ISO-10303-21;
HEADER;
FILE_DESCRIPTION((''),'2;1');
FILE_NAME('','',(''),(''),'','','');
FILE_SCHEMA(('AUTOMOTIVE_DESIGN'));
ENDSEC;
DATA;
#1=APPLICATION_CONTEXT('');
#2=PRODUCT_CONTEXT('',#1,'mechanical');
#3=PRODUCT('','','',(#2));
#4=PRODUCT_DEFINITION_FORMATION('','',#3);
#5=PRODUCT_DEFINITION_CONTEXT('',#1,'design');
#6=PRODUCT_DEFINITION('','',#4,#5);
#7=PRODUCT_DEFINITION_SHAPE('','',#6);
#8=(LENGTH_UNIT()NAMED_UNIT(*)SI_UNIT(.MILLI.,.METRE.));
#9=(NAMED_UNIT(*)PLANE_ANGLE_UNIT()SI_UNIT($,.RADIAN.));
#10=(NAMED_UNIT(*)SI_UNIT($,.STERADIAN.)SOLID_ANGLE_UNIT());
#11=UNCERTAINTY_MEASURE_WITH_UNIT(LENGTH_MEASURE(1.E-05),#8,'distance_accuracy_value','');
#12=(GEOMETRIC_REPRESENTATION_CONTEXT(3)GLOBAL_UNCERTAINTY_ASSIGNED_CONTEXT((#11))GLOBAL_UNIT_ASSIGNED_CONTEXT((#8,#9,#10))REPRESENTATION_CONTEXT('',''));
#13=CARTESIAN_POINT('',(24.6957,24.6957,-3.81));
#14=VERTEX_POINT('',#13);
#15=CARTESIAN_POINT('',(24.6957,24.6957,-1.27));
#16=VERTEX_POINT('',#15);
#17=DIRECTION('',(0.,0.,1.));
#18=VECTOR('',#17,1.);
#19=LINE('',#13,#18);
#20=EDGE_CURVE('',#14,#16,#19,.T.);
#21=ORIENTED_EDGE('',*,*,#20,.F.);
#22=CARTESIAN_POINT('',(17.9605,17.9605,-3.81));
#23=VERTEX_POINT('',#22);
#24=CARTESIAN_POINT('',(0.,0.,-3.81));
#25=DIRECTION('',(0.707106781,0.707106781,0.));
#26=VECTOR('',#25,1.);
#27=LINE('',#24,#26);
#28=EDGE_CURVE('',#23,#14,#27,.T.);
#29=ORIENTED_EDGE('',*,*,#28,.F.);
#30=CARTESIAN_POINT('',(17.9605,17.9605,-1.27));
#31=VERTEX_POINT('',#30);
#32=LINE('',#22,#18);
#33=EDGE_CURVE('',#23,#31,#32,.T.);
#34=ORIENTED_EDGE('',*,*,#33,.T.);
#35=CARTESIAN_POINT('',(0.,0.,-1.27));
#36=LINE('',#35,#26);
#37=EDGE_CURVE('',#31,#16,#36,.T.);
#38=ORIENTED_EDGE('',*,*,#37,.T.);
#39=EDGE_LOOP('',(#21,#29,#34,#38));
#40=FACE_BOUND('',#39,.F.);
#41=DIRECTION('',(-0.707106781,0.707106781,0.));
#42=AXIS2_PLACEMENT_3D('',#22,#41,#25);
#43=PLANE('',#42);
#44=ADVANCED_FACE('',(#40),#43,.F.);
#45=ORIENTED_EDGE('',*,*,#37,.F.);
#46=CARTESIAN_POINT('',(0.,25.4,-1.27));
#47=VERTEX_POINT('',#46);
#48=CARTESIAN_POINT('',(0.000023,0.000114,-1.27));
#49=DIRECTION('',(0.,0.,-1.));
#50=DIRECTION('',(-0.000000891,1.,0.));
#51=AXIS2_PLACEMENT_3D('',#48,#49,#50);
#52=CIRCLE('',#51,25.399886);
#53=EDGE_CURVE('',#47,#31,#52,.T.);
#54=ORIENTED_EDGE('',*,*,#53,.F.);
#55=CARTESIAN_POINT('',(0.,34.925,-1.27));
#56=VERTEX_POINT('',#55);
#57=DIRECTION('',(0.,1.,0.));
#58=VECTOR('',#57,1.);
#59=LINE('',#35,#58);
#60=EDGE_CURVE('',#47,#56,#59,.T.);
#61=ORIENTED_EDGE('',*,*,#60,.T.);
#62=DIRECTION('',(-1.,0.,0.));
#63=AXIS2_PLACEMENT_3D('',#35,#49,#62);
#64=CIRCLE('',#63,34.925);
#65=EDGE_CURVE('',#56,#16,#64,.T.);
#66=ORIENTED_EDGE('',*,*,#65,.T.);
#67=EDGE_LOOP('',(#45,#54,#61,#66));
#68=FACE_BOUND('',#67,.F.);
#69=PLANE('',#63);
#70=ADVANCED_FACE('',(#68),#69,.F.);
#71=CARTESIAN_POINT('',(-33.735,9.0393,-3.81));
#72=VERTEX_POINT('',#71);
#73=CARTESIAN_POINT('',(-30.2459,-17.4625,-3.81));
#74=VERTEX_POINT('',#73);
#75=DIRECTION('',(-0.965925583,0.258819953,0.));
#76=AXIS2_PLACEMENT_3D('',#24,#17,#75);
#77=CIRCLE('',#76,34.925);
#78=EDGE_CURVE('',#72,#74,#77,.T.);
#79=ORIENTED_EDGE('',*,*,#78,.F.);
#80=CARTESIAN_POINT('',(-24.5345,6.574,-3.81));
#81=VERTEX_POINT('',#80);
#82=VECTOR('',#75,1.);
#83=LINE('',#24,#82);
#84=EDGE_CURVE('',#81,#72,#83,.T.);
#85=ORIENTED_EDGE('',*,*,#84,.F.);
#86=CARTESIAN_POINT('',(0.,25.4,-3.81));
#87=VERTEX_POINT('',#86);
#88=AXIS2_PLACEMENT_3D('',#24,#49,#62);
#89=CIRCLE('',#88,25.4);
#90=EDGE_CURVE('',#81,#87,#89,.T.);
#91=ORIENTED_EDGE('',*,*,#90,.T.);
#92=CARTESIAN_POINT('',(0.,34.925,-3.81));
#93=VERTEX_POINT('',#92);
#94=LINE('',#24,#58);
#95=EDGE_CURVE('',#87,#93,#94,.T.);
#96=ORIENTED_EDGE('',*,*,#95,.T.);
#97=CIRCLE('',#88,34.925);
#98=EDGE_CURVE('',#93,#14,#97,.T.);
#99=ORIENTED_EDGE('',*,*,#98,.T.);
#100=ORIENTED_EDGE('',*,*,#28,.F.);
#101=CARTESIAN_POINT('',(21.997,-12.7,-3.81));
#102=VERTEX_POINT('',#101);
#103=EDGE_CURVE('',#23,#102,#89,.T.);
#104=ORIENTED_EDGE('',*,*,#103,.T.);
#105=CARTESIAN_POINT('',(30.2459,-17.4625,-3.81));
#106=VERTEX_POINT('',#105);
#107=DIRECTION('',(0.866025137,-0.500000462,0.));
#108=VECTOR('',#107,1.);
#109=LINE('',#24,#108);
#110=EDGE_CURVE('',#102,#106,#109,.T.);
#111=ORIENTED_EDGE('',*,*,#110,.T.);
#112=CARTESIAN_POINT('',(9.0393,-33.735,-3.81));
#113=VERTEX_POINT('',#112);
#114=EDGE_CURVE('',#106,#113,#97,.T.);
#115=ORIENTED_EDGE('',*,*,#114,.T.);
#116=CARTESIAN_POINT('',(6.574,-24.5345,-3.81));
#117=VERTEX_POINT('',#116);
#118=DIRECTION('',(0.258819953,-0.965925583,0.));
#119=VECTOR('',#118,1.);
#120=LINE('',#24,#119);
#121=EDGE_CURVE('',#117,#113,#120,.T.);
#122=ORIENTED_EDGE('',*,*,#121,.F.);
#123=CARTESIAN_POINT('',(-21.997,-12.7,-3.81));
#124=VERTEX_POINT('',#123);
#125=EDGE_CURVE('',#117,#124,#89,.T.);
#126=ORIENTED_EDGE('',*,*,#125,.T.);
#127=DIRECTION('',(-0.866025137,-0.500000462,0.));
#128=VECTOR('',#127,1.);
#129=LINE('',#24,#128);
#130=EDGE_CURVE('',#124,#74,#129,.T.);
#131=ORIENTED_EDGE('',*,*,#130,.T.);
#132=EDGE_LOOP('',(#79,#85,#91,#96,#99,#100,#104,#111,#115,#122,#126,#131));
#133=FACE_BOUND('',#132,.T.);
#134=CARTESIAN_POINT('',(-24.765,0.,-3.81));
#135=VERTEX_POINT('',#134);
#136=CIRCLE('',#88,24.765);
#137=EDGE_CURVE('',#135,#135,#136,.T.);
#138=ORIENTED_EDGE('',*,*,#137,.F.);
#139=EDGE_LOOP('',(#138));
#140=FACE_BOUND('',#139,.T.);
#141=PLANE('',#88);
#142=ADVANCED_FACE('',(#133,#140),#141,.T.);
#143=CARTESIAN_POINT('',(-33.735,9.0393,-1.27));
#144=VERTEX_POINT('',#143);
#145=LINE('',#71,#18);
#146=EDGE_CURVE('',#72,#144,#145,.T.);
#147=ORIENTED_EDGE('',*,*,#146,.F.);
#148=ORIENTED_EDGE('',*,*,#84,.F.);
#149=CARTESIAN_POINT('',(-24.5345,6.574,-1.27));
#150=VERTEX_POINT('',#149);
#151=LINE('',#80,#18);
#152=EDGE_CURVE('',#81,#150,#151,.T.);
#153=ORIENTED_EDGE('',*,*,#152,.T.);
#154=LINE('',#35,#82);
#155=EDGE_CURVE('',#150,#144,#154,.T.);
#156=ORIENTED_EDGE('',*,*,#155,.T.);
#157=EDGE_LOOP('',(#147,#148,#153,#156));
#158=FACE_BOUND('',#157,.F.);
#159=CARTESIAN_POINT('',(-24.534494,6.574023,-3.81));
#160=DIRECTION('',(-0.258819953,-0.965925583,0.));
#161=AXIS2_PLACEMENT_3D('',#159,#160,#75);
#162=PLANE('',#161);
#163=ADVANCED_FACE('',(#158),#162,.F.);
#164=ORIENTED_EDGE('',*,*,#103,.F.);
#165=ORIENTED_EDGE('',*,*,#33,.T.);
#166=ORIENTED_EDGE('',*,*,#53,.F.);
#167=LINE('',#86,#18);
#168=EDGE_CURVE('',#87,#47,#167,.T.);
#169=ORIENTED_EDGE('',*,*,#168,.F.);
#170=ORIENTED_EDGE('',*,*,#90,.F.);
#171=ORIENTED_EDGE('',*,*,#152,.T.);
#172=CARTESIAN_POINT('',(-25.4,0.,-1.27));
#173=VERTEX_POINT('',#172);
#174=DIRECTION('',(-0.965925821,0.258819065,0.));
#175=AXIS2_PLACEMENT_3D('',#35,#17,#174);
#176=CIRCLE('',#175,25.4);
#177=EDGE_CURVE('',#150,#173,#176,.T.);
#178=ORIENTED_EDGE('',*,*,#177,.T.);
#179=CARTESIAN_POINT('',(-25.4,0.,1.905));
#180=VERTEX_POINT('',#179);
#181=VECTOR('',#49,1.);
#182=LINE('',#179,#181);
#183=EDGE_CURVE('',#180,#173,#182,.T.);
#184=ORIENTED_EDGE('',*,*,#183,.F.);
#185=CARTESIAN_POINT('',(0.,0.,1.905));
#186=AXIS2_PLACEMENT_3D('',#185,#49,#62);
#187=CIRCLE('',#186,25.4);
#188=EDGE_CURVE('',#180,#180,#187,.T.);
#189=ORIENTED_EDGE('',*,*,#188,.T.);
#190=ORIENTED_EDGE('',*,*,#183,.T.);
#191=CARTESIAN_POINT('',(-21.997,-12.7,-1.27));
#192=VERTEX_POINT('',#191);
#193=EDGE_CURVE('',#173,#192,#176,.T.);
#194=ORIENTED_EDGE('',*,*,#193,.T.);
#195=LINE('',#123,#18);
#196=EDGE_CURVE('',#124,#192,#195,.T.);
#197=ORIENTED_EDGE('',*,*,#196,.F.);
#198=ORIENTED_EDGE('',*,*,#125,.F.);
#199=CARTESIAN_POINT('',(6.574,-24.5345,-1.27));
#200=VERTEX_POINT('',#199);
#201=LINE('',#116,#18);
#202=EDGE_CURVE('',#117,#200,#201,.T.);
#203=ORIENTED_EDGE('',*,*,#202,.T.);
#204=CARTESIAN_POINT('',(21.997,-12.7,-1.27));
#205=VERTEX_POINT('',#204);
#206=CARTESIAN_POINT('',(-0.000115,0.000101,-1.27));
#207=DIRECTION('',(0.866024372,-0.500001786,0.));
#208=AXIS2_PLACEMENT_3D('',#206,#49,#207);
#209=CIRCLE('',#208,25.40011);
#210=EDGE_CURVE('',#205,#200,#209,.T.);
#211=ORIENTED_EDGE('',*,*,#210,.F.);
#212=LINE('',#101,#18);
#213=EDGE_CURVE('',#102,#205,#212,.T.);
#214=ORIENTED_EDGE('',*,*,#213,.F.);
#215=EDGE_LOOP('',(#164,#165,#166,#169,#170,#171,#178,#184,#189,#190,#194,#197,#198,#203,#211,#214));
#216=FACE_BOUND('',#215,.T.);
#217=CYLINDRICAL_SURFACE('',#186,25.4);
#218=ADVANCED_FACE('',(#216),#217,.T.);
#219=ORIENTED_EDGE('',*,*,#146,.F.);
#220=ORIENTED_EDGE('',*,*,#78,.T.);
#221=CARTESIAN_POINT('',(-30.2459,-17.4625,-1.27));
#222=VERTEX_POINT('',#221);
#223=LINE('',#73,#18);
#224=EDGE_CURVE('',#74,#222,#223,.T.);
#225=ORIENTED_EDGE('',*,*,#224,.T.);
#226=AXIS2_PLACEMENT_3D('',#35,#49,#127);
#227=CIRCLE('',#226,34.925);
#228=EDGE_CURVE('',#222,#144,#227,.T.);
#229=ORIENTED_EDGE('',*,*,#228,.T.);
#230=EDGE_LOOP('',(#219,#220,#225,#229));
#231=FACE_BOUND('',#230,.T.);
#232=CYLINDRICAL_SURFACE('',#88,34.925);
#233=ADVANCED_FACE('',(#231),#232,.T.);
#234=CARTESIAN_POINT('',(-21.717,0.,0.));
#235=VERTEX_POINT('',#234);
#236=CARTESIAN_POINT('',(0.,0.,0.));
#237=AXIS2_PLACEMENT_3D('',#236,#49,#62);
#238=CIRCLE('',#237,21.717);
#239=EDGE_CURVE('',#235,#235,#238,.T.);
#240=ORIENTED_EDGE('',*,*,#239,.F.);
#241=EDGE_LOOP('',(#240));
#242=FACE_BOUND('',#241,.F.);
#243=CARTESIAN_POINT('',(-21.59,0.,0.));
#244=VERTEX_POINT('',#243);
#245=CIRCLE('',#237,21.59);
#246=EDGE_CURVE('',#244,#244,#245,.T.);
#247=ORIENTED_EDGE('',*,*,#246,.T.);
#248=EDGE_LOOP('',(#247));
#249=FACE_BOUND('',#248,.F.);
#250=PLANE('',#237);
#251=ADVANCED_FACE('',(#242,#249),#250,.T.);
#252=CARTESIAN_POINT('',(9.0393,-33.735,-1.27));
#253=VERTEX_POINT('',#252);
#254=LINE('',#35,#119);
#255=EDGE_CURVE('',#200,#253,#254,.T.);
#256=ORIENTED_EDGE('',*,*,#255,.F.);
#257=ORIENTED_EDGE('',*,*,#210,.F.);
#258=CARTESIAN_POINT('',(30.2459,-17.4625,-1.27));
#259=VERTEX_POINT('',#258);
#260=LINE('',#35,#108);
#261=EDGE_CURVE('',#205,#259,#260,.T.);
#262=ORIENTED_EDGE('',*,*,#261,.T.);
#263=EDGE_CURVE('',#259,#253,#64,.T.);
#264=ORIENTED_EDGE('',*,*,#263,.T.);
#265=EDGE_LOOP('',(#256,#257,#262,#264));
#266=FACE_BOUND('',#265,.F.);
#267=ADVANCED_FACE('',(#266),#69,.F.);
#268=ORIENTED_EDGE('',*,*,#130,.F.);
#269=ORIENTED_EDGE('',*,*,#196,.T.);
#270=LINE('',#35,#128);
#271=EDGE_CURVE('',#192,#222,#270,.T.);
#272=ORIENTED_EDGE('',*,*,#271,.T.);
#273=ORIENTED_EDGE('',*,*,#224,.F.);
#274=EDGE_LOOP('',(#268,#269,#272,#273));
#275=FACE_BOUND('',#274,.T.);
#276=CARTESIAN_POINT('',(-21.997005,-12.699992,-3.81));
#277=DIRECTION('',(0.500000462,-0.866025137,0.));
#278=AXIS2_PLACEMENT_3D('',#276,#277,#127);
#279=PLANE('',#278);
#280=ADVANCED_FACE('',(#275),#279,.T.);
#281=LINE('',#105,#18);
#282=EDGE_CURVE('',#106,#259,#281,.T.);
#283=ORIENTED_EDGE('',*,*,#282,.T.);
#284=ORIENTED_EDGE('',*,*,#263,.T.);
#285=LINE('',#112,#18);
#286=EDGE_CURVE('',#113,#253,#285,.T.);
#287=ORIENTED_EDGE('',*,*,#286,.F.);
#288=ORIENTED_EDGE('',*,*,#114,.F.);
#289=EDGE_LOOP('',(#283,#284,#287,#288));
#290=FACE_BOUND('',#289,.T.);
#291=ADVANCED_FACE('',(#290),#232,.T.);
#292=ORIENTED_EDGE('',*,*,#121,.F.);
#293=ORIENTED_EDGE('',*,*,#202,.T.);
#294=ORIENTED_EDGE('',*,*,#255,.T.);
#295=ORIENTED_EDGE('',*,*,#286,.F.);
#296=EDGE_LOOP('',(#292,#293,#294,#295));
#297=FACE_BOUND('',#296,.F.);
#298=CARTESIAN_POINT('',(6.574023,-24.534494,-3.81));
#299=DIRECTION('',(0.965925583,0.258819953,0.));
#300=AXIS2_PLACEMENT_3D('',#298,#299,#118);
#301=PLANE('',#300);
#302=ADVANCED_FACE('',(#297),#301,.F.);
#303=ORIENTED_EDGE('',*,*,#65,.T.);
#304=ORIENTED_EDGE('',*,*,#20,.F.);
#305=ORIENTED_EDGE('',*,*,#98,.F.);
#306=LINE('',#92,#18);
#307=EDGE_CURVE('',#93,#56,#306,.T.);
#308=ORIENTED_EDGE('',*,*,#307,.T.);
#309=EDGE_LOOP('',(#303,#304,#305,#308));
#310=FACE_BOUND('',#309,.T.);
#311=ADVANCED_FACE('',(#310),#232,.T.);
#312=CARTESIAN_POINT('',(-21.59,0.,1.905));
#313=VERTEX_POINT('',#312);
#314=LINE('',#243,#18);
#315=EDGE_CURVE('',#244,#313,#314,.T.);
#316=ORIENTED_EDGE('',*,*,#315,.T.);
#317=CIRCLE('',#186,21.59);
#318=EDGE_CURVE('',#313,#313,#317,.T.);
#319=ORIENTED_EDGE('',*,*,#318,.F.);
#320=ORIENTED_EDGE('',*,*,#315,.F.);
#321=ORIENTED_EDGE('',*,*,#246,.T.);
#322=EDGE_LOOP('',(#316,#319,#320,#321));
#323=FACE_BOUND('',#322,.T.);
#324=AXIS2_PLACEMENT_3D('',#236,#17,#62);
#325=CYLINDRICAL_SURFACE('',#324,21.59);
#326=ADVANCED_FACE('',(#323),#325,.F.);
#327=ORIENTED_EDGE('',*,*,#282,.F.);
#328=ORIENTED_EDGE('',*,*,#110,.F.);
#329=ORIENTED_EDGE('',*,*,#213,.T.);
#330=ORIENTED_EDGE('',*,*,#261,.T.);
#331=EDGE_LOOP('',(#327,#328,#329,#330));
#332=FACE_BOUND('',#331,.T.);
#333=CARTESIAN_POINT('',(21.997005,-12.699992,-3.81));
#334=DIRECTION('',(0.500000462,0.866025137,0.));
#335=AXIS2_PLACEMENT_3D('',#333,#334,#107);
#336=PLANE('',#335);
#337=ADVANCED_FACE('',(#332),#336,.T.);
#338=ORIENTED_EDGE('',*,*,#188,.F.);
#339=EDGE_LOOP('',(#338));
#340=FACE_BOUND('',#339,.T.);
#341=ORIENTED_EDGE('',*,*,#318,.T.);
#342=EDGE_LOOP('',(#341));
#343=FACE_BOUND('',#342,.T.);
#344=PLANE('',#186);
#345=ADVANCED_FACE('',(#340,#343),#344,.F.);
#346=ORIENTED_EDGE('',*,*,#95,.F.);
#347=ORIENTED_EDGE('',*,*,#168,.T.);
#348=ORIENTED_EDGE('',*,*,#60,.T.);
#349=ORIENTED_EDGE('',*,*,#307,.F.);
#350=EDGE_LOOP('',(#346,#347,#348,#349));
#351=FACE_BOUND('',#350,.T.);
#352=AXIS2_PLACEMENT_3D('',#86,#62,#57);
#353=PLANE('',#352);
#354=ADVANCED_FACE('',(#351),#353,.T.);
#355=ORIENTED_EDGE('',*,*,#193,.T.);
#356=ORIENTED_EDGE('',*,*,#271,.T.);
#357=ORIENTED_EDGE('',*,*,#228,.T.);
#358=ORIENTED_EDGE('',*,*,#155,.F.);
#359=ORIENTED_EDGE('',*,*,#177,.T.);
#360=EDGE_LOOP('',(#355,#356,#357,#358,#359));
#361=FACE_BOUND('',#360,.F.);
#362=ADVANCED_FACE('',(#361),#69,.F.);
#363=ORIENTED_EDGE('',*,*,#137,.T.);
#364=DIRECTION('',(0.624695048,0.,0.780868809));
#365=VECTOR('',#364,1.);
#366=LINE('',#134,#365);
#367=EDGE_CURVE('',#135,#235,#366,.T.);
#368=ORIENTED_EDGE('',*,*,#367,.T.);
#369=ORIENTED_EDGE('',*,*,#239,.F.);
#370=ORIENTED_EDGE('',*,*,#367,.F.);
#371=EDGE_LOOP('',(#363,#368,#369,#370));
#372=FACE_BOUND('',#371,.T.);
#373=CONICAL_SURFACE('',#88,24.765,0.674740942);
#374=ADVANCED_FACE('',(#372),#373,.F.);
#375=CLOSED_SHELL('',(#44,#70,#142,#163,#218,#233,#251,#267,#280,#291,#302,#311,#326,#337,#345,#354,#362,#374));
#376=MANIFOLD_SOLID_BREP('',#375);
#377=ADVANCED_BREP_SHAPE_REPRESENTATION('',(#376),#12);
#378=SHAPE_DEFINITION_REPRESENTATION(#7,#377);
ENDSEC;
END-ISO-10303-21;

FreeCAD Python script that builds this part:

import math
import FreeCAD as App
import Part
import Sketcher

V = App.Vector
Q = App.Units.Quantity


def add_polygon(sketch, points):
    """Adds a closed chain of lines whose ends are joined by coincident constraints."""
    first, n = sketch.GeometryCount, len(points)
    for a, b in zip(points, points[1:] + points[:1]):
        sketch.addGeometry(Part.LineSegment(App.Vector(*a, 0), App.Vector(*b, 0)), False)
    for i in range(n):
        sketch.addConstraint(Sketcher.Constraint("Coincident", first + i, 2, first + (i + 1) % n, 1))

doc = App.newDocument("Part")
body = doc.addObject("PartDesign::Body", "Body")

# Sketch on XZ plane
sketch1 = body.newObject("Sketcher::SketchObject", "Sketch")
sketch1.AttachmentSupport = (doc.getObject("XZ_Plane"), [""])
sketch1.MapMode = "FlatFace"
add_polygon(sketch1, [(-21.59, 1.905), (-21.59, 0), (-21.717, 0), (-24.765, -3.81), (-25.4, -3.81), (-25.4, 1.905)])  # lines 0-5
sketch1.addConstraint(Sketcher.Constraint("Vertical", 0))
sketch1.addConstraint(Sketcher.Constraint("Horizontal", 1))
sketch1.addConstraint(Sketcher.Constraint("Horizontal", 3))
sketch1.addConstraint(Sketcher.Constraint("Vertical", 4))
sketch1.addConstraint(Sketcher.Constraint("Horizontal", 5))
sketch1.addConstraint(Sketcher.Constraint("PointOnObject", 0, 2, -1))
sketch1.addConstraint(Sketcher.Constraint("DistanceX", 5, 1, 5, 2, Q("0.15 in")))
sketch1.addConstraint(Sketcher.Constraint("DistanceX", 3, 2, 3, 1, Q("0.025 in")))
sketch1.addConstraint(Sketcher.Constraint("DistanceY", 0, 2, 0, 1, Q("0.075 in")))
sketch1.addConstraint(Sketcher.Constraint("DistanceY", 2, 2, -1, 1, Q("0.15 in")))
sketch1.addConstraint(Sketcher.Constraint("DistanceX", 2, 2, 1, 2, Q("0.12 in")))
sketch1.addConstraint(Sketcher.Constraint("DistanceX", 1, 2, -1, 1, Q("0.855 in")))
revolution = body.newObject("PartDesign::Revolution", "Revolution")
revolution.Profile = sketch1
revolution.ReferenceAxis = (sketch1, ["V_Axis"])
revolution.Angle = 360

# Sketch on XY plane
sketch2 = body.newObject("Sketcher::SketchObject", "Sketch001")
sketch2.AttachmentSupport = (doc.getObject("XY_Plane"), [""])
sketch2.MapMode = "FlatFace"
sketch2.AttachmentOffset = App.Placement(V(0, 0, -0.15 * 25.4), App.Rotation())
sketch2.addGeometry(Part.ArcOfCircle(Part.Circle(V(0, 0, 0), V(0, 0, 1), 25.4), math.radians(164.999999), math.radians(210.000051)), False)
sketch2.addGeometry(Part.LineSegment(V(-21.997005, -12.699992, 0), V(-30.2459, -17.4625, 0)), False)
sketch2.addGeometry(Part.ArcOfCircle(Part.Circle(V(0, 0, 0), V(0, 0, 1), 34.925), math.radians(164.999946), math.radians(210.000031)), False)
sketch2.addGeometry(Part.LineSegment(V(-33.735, 9.0393, 0), V(-24.534494, 6.574023, 0)), False)
sketch2.addGeometry(Part.ArcOfCircle(Part.Circle(V(0, 0, 0), V(0, 0, 1), 25.399961), math.radians(45), math.radians(90)), False)
sketch2.addGeometry(Part.LineSegment(V(0, 25.4, 0), V(0, 34.925, 0)), False)
sketch2.addGeometry(Part.ArcOfCircle(Part.Circle(V(0, 0, 0), V(0, 0, 1), 34.925), math.radians(45), math.radians(90)), False)
sketch2.addGeometry(Part.LineSegment(V(24.6957, 24.6957, 0), V(17.9605, 17.9605, 0)), False)
sketch2.addGeometry(Part.LineSegment(V(9.0393, -33.735, 0), V(6.574023, -24.534494, 0)), False)
sketch2.addGeometry(Part.ArcOfCircle(Part.Circle(V(0, 0, 0), V(0, 0, 1), 25.4), math.radians(-74.999999), math.radians(-30.000051)), False)
sketch2.addGeometry(Part.LineSegment(V(21.997005, -12.699992, 0), V(30.2459, -17.4625, 0)), False)
sketch2.addGeometry(Part.ArcOfCircle(Part.Circle(V(0, 0, 0), V(0, 0, 1), 34.925), math.radians(-74.999946), math.radians(-30.000031)), False)
sketch2.addConstraint(Sketcher.Constraint("Coincident", 0, 2, 1, 1))
sketch2.addConstraint(Sketcher.Constraint("Coincident", 1, 2, 2, 2))
sketch2.addConstraint(Sketcher.Constraint("Coincident", 2, 1, 3, 1))
sketch2.addConstraint(Sketcher.Constraint("Coincident", 3, 2, 0, 1))
sketch2.addConstraint(Sketcher.Constraint("Coincident", 4, 2, 5, 1))
sketch2.addConstraint(Sketcher.Constraint("Coincident", 5, 2, 6, 2))
sketch2.addConstraint(Sketcher.Constraint("Coincident", 6, 1, 7, 1))
sketch2.addConstraint(Sketcher.Constraint("Coincident", 7, 2, 4, 1))
sketch2.addConstraint(Sketcher.Constraint("Coincident", 8, 2, 9, 1))
sketch2.addConstraint(Sketcher.Constraint("Coincident", 9, 2, 10, 1))
sketch2.addConstraint(Sketcher.Constraint("Coincident", 10, 2, 11, 2))
sketch2.addConstraint(Sketcher.Constraint("Coincident", 11, 1, 8, 1))
sketch2.addConstraint(Sketcher.Constraint("Vertical", 5))
sketch2.addConstraint(Sketcher.Constraint("Coincident", 0, 3, -1, 1))
sketch2.addConstraint(Sketcher.Constraint("Coincident", 2, 3, -1, 1))
sketch2.addConstraint(Sketcher.Constraint("Coincident", 4, 3, -1, 1))
sketch2.addConstraint(Sketcher.Constraint("Coincident", 6, 3, -1, 1))
sketch2.addConstraint(Sketcher.Constraint("Coincident", 9, 3, -1, 1))
sketch2.addConstraint(Sketcher.Constraint("Coincident", 11, 3, -1, 1))
sketch2.addConstraint(Sketcher.Constraint("Equal", 0, 4))
sketch2.addConstraint(Sketcher.Constraint("Equal", 2, 6))
sketch2.addConstraint(Sketcher.Constraint("Equal", 4, 9))
sketch2.addConstraint(Sketcher.Constraint("Equal", 6, 11))
sketch2.addConstraint(Sketcher.Constraint("PointOnObject", 4, 2, -2))
sketch2.addConstraint(Sketcher.Constraint("Horizontal", 0, 2, 9, 2))
sketch2.addConstraint(Sketcher.Constraint("Horizontal", 1, 2, 10, 2))
sketch2.addConstraint(Sketcher.Constraint("Angle", 1, Q("-150 deg")))
sketch2.addConstraint(Sketcher.Constraint("Angle", 3, Q("-15 deg")))
sketch2.addConstraint(Sketcher.Constraint("Angle", 7, Q("-135 deg")))
sketch2.addConstraint(Sketcher.Constraint("Angle", 8, Q("105 deg")))
sketch2.addConstraint(Sketcher.Constraint("Radius", 0, Q("1 in")))
sketch2.addConstraint(Sketcher.Constraint("Radius", 2, Q("1.375 in")))
sketch2.addConstraint(Sketcher.Constraint("DistanceY", 0, 2, -1, 1, Q("0.5 in")))
sketch2.addConstraint(Sketcher.Constraint("DistanceX", -1, 1, 7, 2, Q("0.7071 in")))
sketch2.addConstraint(Sketcher.Constraint("DistanceX", 3, 2, 0, 2, Q("0.0999 in")))
sketch2.addConstraint(Sketcher.Constraint("DistanceX", 8, 2, 9, 2, Q("0.6072 in")))
pad1 = body.newObject("PartDesign::Pad", "Pad")
pad1.Profile = sketch2
pad1.Length = Q("0.1 in")

doc.recompute()
